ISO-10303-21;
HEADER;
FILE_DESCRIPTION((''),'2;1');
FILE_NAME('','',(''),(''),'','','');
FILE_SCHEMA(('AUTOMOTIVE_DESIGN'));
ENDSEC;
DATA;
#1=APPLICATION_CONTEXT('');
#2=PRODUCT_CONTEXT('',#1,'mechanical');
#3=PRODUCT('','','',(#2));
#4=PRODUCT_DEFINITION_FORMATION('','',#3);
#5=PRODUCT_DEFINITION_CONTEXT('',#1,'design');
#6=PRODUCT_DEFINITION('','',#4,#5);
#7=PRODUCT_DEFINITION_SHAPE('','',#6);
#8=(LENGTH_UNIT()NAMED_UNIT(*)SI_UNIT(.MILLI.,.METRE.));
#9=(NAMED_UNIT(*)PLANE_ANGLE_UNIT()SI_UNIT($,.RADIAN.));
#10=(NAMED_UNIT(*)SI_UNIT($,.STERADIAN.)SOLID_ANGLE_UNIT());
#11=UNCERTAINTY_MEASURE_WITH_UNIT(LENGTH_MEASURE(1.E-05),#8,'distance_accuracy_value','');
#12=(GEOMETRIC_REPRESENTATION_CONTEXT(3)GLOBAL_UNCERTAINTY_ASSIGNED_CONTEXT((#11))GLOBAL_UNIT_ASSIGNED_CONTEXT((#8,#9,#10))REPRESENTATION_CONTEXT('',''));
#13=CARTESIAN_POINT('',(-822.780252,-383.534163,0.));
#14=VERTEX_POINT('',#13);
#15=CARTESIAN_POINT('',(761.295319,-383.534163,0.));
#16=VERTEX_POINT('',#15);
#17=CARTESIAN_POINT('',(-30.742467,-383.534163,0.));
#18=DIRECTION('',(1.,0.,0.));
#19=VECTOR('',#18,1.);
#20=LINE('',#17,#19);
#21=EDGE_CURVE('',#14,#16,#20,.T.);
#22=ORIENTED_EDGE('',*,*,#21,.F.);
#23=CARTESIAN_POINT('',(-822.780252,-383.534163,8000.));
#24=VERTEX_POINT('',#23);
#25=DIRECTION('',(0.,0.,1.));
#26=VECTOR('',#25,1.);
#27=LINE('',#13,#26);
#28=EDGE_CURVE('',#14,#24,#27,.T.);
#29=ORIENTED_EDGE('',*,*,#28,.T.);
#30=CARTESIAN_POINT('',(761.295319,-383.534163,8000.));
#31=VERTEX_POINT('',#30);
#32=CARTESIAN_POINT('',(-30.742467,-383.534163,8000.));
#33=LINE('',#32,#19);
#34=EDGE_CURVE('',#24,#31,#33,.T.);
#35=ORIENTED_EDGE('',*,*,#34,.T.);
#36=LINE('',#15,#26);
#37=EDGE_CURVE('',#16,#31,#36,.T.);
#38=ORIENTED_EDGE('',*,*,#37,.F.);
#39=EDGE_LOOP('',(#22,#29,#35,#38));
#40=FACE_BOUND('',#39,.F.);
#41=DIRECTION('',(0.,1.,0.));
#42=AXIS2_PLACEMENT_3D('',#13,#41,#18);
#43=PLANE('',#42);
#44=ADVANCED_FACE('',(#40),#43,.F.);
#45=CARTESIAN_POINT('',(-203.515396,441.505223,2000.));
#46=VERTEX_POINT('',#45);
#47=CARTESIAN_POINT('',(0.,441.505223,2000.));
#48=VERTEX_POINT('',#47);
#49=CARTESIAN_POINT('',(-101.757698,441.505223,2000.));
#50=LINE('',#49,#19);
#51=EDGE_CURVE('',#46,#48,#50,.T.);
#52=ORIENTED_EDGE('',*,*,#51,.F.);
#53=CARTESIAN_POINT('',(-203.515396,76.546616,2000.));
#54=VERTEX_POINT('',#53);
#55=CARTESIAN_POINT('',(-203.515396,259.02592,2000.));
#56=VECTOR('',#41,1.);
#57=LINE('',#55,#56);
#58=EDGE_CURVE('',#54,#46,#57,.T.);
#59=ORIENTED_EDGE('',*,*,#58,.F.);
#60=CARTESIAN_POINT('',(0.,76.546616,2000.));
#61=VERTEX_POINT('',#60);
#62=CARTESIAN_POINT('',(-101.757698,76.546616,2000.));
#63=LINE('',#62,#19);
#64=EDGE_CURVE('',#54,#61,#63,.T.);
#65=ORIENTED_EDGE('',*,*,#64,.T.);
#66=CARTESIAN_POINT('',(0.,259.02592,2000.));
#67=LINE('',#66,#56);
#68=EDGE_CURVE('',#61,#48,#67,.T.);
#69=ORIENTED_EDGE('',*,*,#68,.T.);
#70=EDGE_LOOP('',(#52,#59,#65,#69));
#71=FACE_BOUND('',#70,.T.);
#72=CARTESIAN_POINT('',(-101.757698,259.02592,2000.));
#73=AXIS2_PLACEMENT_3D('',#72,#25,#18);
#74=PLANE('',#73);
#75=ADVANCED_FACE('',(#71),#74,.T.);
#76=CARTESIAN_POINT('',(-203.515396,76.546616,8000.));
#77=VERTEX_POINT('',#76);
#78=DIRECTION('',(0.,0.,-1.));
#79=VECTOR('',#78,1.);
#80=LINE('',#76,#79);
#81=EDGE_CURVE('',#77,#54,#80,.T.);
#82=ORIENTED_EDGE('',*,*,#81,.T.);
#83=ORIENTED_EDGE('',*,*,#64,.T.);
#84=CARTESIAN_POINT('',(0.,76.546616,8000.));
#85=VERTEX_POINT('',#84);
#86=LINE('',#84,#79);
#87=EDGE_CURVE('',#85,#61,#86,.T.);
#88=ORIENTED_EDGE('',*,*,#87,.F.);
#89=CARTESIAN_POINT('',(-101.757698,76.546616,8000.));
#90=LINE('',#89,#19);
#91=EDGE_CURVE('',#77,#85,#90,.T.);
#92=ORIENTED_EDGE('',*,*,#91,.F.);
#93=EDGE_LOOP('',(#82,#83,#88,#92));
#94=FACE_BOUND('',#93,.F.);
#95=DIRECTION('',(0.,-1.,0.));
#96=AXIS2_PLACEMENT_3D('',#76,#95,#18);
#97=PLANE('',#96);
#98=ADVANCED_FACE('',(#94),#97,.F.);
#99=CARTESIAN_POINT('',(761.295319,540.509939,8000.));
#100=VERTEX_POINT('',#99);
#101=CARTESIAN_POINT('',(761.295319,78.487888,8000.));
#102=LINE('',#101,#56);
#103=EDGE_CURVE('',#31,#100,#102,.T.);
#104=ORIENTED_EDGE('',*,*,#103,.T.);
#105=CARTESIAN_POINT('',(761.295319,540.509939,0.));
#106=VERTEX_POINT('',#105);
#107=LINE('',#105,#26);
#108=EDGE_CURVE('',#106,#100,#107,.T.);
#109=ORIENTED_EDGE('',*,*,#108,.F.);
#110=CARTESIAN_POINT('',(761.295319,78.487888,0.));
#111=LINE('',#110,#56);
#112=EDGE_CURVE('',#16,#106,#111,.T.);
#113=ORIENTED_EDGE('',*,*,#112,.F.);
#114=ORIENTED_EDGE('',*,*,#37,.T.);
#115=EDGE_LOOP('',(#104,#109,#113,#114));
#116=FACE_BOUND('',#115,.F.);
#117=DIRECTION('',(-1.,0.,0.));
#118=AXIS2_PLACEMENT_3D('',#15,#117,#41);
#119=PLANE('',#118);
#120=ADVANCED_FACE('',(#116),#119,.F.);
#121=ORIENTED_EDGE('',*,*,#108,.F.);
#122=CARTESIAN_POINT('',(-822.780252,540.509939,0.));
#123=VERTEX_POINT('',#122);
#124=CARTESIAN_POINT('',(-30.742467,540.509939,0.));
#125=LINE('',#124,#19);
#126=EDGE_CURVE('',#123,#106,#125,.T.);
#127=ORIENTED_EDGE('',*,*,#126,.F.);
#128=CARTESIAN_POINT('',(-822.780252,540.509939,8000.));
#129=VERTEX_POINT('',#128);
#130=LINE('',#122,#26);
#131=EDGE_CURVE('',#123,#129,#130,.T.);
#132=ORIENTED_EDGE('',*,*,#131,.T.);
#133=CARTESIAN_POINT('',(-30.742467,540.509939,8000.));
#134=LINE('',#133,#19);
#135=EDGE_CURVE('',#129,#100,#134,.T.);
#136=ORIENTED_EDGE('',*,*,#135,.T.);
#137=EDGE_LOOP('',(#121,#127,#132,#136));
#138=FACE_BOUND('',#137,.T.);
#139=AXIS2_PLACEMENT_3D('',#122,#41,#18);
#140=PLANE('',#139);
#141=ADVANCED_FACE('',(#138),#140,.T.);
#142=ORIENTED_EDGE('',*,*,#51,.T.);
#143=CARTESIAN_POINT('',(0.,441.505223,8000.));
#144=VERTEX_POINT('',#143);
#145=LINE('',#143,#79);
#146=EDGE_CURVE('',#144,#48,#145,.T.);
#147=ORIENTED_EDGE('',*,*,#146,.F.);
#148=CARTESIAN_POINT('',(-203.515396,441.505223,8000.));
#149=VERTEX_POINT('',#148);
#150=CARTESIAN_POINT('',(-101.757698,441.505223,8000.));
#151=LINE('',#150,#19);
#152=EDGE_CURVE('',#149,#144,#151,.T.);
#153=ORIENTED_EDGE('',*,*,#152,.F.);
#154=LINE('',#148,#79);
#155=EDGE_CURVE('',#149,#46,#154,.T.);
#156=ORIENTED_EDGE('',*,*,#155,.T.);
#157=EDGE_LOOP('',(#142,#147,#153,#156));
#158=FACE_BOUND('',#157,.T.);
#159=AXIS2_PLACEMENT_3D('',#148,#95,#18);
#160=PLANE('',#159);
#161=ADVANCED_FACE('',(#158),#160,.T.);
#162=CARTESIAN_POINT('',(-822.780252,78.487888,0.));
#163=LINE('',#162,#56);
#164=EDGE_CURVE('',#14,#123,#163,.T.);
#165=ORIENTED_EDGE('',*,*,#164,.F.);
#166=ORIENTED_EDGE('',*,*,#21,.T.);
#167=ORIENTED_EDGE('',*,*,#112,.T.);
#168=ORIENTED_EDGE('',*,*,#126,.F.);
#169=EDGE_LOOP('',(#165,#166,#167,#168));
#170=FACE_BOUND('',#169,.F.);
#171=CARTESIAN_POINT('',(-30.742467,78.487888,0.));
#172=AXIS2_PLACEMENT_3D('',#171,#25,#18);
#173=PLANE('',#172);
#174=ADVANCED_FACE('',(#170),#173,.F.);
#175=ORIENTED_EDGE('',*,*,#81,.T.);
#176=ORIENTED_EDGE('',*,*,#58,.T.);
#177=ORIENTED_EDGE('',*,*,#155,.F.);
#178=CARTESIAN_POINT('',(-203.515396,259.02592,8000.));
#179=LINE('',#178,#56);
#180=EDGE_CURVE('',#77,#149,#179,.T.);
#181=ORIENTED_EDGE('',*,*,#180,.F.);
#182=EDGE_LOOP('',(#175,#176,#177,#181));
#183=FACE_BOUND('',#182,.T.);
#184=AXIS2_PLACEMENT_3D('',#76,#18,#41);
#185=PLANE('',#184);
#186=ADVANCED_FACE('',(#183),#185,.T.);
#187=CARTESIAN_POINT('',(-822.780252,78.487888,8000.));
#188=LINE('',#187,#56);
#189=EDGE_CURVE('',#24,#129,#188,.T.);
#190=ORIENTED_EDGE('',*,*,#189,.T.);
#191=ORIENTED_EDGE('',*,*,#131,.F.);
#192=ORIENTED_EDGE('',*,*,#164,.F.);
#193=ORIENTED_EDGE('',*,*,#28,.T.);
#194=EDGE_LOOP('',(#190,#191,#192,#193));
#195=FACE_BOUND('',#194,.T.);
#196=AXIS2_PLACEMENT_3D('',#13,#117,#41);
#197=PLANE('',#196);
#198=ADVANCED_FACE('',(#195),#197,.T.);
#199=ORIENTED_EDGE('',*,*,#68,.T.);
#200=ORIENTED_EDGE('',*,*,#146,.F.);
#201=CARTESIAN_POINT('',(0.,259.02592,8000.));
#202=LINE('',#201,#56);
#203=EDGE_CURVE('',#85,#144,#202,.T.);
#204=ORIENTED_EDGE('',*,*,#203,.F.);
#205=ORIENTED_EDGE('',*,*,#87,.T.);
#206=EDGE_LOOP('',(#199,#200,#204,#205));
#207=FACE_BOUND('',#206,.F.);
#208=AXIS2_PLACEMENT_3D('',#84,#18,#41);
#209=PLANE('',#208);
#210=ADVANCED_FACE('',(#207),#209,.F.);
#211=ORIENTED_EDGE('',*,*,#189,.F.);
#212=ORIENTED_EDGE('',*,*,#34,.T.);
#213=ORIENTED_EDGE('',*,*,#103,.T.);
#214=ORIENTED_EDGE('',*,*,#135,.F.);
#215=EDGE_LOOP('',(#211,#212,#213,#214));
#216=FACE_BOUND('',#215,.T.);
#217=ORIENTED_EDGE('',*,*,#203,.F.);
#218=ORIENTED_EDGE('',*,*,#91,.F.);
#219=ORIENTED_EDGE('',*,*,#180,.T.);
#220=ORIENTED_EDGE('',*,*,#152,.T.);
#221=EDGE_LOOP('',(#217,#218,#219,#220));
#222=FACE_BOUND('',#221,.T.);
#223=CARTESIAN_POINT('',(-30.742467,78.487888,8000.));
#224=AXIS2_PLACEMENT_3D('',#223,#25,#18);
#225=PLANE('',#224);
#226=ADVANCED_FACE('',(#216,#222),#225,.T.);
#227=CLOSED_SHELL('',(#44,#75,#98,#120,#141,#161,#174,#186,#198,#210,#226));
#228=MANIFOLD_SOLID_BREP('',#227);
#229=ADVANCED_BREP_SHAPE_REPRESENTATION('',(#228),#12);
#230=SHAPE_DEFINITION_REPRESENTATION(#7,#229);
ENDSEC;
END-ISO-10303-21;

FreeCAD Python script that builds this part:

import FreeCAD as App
import Part
import Sketcher
from FreeCAD import Vector
Q = App.Units.Quantity


def add_polygon(sketch, points):
    """Adds a closed chain of lines whose ends are joined by coincident constraints."""
    first, n = sketch.GeometryCount, len(points)
    for a, b in zip(points, points[1:] + points[:1]):
        sketch.addGeometry(Part.LineSegment(App.Vector(*a, 0), App.Vector(*b, 0)), False)
    for i in range(n):
        sketch.addConstraint(Sketcher.Constraint("Coincident", first + i, 2, first + (i + 1) % n, 1))

doc = App.newDocument("Part")
body = doc.addObject("PartDesign::Body", "Body")

sketch1 = body.newObject("Sketcher::SketchObject", "Sketch")
sketch1.AttachmentSupport = (doc.getObject("XY_Plane"), [""])
sketch1.MapMode = "FlatFace"
add_polygon(sketch1, [(-823, 541), (-823, -384), (761, -384), (761, 541)])
sketch1.addConstraint(Sketcher.Constraint("Vertical", 0))
sketch1.addConstraint(Sketcher.Constraint("Horizontal", 1))
sketch1.addConstraint(Sketcher.Constraint("Vertical", 2))
sketch1.addConstraint(Sketcher.Constraint("Horizontal", 3))
sketch1.addConstraint(Sketcher.Constraint("DistanceX", 1, 1, 1, 2, Q("1584.075571 mm")))
sketch1.addConstraint(Sketcher.Constraint("DistanceY", 0, 2, 0, 1, Q("924.044102 mm")))
sketch1.addConstraint(Sketcher.Constraint("DistanceX", -1, 1, 1, 2, Q("761.295319 mm")))
sketch1.addConstraint(Sketcher.Constraint("DistanceY", -1, 1, 2, 2, Q("540.509939 mm")))
pad1 = body.newObject("PartDesign::Pad", "Pad")
pad1.Profile = sketch1
pad1.Length = 8000

sketch2 = body.newObject("Sketcher::SketchObject", "Sketch001")
sketch2.AttachmentSupport = (doc.getObject("XY_Plane"), [""])
sketch2.MapMode = "FlatFace"
sketch2.AttachmentOffset = App.Placement(Vector(0, 0, 8000), App.Rotation())
add_polygon(sketch2, [(-204, 442), (-204, 77), (0, 77), (0, 442)])
sketch2.addConstraint(Sketcher.Constraint("Vertical", 0))
sketch2.addConstraint(Sketcher.Constraint("Horizontal", 1))
sketch2.addConstraint(Sketcher.Constraint("Vertical", 2))
sketch2.addConstraint(Sketcher.Constraint("Horizontal", 3))
sketch2.addConstraint(Sketcher.Constraint("PointOnObject", 1, 2, -2))
sketch2.addConstraint(Sketcher.Constraint("DistanceX", 1, 1, 1, 2, Q("203.515396 mm")))
sketch2.addConstraint(Sketcher.Constraint("DistanceY", 0, 2, 0, 1, Q("364.958607 mm")))
sketch2.addConstraint(Sketcher.Constraint("DistanceY", -1, 1, 0, 2, Q("76.546616 mm")))
pocket1 = body.newObject("PartDesign::Pocket", "Pocket")
pocket1.Profile = sketch2
pocket1.Length = 6000

doc.recompute()
